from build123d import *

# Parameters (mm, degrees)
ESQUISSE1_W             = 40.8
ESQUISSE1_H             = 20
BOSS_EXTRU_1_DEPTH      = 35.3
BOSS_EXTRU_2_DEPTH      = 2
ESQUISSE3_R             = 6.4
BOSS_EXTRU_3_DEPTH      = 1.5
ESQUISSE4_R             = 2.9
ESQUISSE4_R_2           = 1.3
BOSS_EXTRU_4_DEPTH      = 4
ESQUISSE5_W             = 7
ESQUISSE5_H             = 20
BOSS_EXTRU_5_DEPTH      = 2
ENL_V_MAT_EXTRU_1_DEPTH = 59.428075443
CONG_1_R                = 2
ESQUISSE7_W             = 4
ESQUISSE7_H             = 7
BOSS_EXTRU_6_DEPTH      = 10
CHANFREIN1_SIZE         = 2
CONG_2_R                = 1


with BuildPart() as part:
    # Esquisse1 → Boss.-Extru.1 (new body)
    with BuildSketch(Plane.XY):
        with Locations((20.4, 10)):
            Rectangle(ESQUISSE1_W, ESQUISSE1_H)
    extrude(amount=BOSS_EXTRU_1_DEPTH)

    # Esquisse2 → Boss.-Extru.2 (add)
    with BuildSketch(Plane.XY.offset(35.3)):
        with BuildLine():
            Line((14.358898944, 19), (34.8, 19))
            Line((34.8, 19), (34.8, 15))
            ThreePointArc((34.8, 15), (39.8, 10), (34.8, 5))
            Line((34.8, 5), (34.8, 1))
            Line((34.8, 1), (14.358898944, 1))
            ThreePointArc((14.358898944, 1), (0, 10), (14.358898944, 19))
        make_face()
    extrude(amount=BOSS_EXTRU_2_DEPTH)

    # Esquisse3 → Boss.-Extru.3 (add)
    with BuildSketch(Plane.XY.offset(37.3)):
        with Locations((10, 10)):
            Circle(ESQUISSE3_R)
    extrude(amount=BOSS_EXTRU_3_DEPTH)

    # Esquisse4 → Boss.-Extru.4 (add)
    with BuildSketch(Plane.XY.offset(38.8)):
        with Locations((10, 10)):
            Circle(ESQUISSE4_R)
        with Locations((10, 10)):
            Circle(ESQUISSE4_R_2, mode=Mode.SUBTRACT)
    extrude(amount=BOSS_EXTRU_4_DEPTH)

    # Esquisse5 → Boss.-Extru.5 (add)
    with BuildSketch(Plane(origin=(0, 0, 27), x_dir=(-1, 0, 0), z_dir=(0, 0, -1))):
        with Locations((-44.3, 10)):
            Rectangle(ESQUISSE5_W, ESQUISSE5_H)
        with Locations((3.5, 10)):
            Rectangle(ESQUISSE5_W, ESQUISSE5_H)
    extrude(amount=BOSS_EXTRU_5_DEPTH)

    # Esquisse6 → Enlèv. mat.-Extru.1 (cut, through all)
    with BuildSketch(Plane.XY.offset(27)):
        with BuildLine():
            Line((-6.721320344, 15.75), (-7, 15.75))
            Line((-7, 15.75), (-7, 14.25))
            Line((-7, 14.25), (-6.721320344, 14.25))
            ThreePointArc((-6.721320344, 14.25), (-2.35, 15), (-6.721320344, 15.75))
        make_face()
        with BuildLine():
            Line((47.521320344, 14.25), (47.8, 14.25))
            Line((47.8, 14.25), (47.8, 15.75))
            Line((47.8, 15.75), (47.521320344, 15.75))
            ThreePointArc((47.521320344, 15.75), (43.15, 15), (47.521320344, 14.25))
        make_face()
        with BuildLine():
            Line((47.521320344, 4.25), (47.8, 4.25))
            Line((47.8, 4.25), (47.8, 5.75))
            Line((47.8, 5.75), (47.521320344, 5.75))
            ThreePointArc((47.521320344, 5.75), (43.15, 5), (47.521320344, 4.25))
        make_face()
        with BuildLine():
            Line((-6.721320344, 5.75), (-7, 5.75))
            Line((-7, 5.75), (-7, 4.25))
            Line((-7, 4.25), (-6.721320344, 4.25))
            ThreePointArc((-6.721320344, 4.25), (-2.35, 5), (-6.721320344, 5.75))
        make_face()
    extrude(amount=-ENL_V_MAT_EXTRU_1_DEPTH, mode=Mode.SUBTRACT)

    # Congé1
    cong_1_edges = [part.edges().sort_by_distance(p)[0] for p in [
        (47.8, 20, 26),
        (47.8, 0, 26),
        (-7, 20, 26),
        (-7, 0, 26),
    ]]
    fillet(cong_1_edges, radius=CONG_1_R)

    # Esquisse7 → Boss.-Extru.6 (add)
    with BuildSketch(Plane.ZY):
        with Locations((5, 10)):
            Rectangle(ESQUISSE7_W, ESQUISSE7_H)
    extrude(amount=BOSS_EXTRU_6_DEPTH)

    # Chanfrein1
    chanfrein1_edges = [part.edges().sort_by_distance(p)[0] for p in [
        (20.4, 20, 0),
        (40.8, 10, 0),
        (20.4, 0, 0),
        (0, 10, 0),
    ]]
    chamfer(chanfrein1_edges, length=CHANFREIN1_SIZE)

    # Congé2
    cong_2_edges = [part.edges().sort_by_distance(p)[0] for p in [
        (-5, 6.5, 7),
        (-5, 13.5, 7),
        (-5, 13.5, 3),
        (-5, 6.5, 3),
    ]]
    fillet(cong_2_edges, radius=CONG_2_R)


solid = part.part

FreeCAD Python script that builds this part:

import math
import FreeCAD as App
import Part
import Sketcher

V = App.Vector
Q = App.Units.Quantity


def edges_at(feature, points):
    """Names of the edges that pass closest to the given points."""
    edges = feature.Shape.Edges
    near = lambda p: min(range(len(edges)), key=lambda i: edges[i].distToShape(Part.Vertex(*p))[0])
    return sorted({f"Edge{near(p) + 1}" for p in points})

doc = App.newDocument("Part")
body = doc.addObject("PartDesign::Body", "Body")

# Sketch on XY plane
sketch1 = body.newObject("Sketcher::SketchObject", "Sketch")
sketch1.AttachmentSupport = (doc.getObject("XY_Plane"), [""])
sketch1.MapMode = "FlatFace"
sketch1.addGeometry(Part.LineSegment(V(0, 20, 0), V(0, 0, 0)), False)
sketch1.addGeometry(Part.LineSegment(V(0, 0, 0), V(40.8, 0, 0)), False)
sketch1.addGeometry(Part.LineSegment(V(40.8, 0, 0), V(40.8, 20, 0)), False)
sketch1.addGeometry(Part.LineSegment(V(40.8, 20, 0), V(0, 20, 0)), False)
sketch1.addConstraint(Sketcher.Constraint("Coincident", 0, 2, 1, 1))
sketch1.addConstraint(Sketcher.Constraint("Coincident", 1, 2, 2, 1))
sketch1.addConstraint(Sketcher.Constraint("Coincident", 2, 2, 3, 1))
sketch1.addConstraint(Sketcher.Constraint("Coincident", 3, 2, 0, 1))
sketch1.addConstraint(Sketcher.Constraint("Vertical", 0))
sketch1.addConstraint(Sketcher.Constraint("Horizontal", 1))
sketch1.addConstraint(Sketcher.Constraint("Vertical", 2))
sketch1.addConstraint(Sketcher.Constraint("Horizontal", 3))
sketch1.addConstraint(Sketcher.Constraint("Coincident", 0, 2, -1, 1))
sketch1.addConstraint(Sketcher.Constraint("DistanceY", 0, 2, 0, 1, Q("20 mm")))
sketch1.addConstraint(Sketcher.Constraint("DistanceX", 1, 1, 1, 2, Q("40.8 mm")))
pad1 = body.newObject("PartDesign::Pad", "Pad")
pad1.Profile = sketch1
pad1.Length = 35.3

# Sketch on XY plane
sketch2 = body.newObject("Sketcher::SketchObject", "Sketch001")
sketch2.AttachmentSupport = (doc.getObject("XY_Plane"), [""])
sketch2.MapMode = "FlatFace"
sketch2.AttachmentOffset = App.Placement(V(0, 0, 35.3), App.Rotation())
sketch2.addGeometry(Part.LineSegment(V(34.8, 19, 0), V(14.358899, 19, 0)), False)
sketch2.addGeometry(Part.ArcOfCircle(Part.Circle(V(10, 10, 0), V(0, 0, 1), 10), math.radians(64.158067), math.radians(295.841933)), False)
sketch2.addGeometry(Part.LineSegment(V(14.358899, 1, 0), V(34.8, 1, 0)), False)
sketch2.addGeometry(Part.LineSegment(V(34.8, 1, 0), V(34.8, 5, 0)), False)
sketch2.addGeometry(Part.ArcOfCircle(Part.Circle(V(34.8, 10, 0), V(0, 0, 1), 5), math.radians(-90), math.radians(90)), False)
sketch2.addGeometry(Part.LineSegment(V(34.8, 15, 0), V(34.8, 19, 0)), False)
sketch2.addConstraint(Sketcher.Constraint("Coincident", 0, 2, 1, 1))
sketch2.addConstraint(Sketcher.Constraint("Coincident", 1, 2, 2, 1))
sketch2.addConstraint(Sketcher.Constraint("Coincident", 2, 2, 3, 1))
sketch2.addConstraint(Sketcher.Constraint("Coincident", 3, 2, 4, 1))
sketch2.addConstraint(Sketcher.Constraint("Coincident", 4, 2, 5, 1))
sketch2.addConstraint(Sketcher.Constraint("Coincident", 5, 2, 0, 1))
sketch2.addConstraint(Sketcher.Constraint("Horizontal", 0))
sketch2.addConstraint(Sketcher.Constraint("Horizontal", 2))
sketch2.addConstraint(Sketcher.Constraint("Vertical", 3))
sketch2.addConstraint(Sketcher.Constraint("Vertical", 5))
sketch2.addConstraint(Sketcher.Constraint("Horizontal", 1, 3, 4, 3))
sketch2.addConstraint(Sketcher.Constraint("Vertical", 0, 2, 1, 2))
sketch2.addConstraint(Sketcher.Constraint("Vertical", 4, 3, 2, 2))
sketch2.addConstraint(Sketcher.Constraint("Vertical", 3, 2, 4, 2))
sketch2.addConstraint(Sketcher.Constraint("Radius", 1, Q("10 mm")))
sketch2.addConstraint(Sketcher.Constraint("Radius", 4, Q("5 mm")))
sketch2.addConstraint(Sketcher.Constraint("DistanceY", 3, 1, 3, 2, Q("4 mm")))
sketch2.addConstraint(Sketcher.Constraint("DistanceX", -1, 1, 1, 3, Q("10 mm")))
sketch2.addConstraint(Sketcher.Constraint("DistanceY", -1, 1, 1, 3, Q("10 mm")))
sketch2.addConstraint(Sketcher.Constraint("DistanceX", -1, 1, 4, 3, Q("34.8 mm")))
pad2 = body.newObject("PartDesign::Pad", "Pad001")
pad2.Profile = sketch2
pad2.Length = 2

# Sketch on XY plane
sketch3 = body.newObject("Sketcher::SketchObject", "Sketch002")
sketch3.AttachmentSupport = (doc.getObject("XY_Plane"), [""])
sketch3.MapMode = "FlatFace"
sketch3.AttachmentOffset = App.Placement(V(0, 0, 37.3), App.Rotation())
sketch3.addGeometry(Part.Circle(V(10, 10, 0), V(0, 0, 1), 6.4), False)
sketch3.addConstraint(Sketcher.Constraint("Diameter", 0, Q("12.8 mm")))
sketch3.addConstraint(Sketcher.Constraint("DistanceX", -1, 1, 0, 3, Q("10 mm")))
sketch3.addConstraint(Sketcher.Constraint("DistanceY", -1, 1, 0, 3, Q("10 mm")))
pad3 = body.newObject("PartDesign::Pad", "Pad002")
pad3.Profile = sketch3
pad3.Length = 1.5

# Sketch on XY plane
sketch4 = body.newObject("Sketcher::SketchObject", "Sketch003")
sketch4.AttachmentSupport = (doc.getObject("XY_Plane"), [""])
sketch4.MapMode = "FlatFace"
sketch4.AttachmentOffset = App.Placement(V(0, 0, 38.8), App.Rotation())
sketch4.addGeometry(Part.Circle(V(10, 10, 0), V(0, 0, 1), 2.9), False)
sketch4.addGeometry(Part.Circle(V(10, 10, 0), V(0, 0, 1), 1.3), False)
sketch4.addConstraint(Sketcher.Constraint("Coincident", 1, 3, 0, 3))
sketch4.addConstraint(Sketcher.Constraint("Diameter", 0, Q("5.8 mm")))
sketch4.addConstraint(Sketcher.Constraint("Diameter", 1, Q("2.6 mm")))
sketch4.addConstraint(Sketcher.Constraint("DistanceX", -1, 1, 0, 3, Q("10 mm")))
sketch4.addConstraint(Sketcher.Constraint("DistanceY", -1, 1, 0, 3, Q("10 mm")))
pad4 = body.newObject("PartDesign::Pad", "Pad003")
pad4.Profile = sketch4
pad4.Length = 4

# Sketch on XY plane
sketch5 = body.newObject("Sketcher::SketchObject", "Sketch004")
sketch5.AttachmentSupport = (doc.getObject("XY_Plane"), [""])
sketch5.MapMode = "FlatFace"
sketch5.AttachmentOffset = App.Placement(V(0, 0, 27), App.Rotation())
sketch5.addGeometry(Part.LineSegment(V(47.8, 20, 0), V(47.8, 0, 0)), False)
sketch5.addGeometry(Part.LineSegment(V(47.8, 0, 0), V(40.8, 0, 0)), False)
sketch5.addGeometry(Part.LineSegment(V(40.8, 0, 0), V(40.8, 20, 0)), False)
sketch5.addGeometry(Part.LineSegment(V(40.8, 20, 0), V(47.8, 20, 0)), False)
sketch5.addGeometry(Part.LineSegment(V(0, 20, 0), V(0, 0, 0)), False)
sketch5.addGeometry(Part.LineSegment(V(0, 0, 0), V(-7, 0, 0)), False)
sketch5.addGeometry(Part.LineSegment(V(-7, 0, 0), V(-7, 20, 0)), False)
sketch5.addGeometry(Part.LineSegment(V(-7, 20, 0), V(0, 20, 0)), False)
sketch5.addConstraint(Sketcher.Constraint("Coincident", 0, 2, 1, 1))
sketch5.addConstraint(Sketcher.Constraint("Coincident", 1, 2, 2, 1))
sketch5.addConstraint(Sketcher.Constraint("Coincident", 2, 2, 3, 1))
sketch5.addConstraint(Sketcher.Constraint("Coincident", 3, 2, 0, 1))
sketch5.addConstraint(Sketcher.Constraint("Coincident", 4, 2, 5, 1))
sketch5.addConstraint(Sketcher.Constraint("Coincident", 5, 2, 6, 1))
sketch5.addConstraint(Sketcher.Constraint("Coincident", 6, 2, 7, 1))
sketch5.addConstraint(Sketcher.Constraint("Coincident", 7, 2, 4, 1))
sketch5.addConstraint(Sketcher.Constraint("Vertical", 0))
sketch5.addConstraint(Sketcher.Constraint("Horizontal", 1))
sketch5.addConstraint(Sketcher.Constraint("Vertical", 2))
sketch5.addConstraint(Sketcher.Constraint("Horizontal", 3))
sketch5.addConstraint(Sketcher.Constraint("Vertical", 4))
sketch5.addConstraint(Sketcher.Constraint("Horizontal", 5))
sketch5.addConstraint(Sketcher.Constraint("Vertical", 6))
sketch5.addConstraint(Sketcher.Constraint("Horizontal", 7))
sketch5.addConstraint(Sketcher.Constraint("Coincident", 4, 2, -1, 1))
sketch5.addConstraint(Sketcher.Constraint("PointOnObject", 0, 2, -1))
sketch5.addConstraint(Sketcher.Constraint("Horizontal", 3, 2, 6, 2))
sketch5.addConstraint(Sketcher.Constraint("Equal", 3, 5))
sketch5.addConstraint(Sketcher.Constraint("DistanceX", 1, 2, 1, 1, Q("7 mm")))
sketch5.addConstraint(Sketcher.Constraint("DistanceY", 0, 2, 0, 1, Q("20 mm")))
sketch5.addConstraint(Sketcher.Constraint("DistanceX", -1, 1, 0, 2, Q("47.8 mm")))
pad5 = body.newObject("PartDesign::Pad", "Pad004")
pad5.Profile = sketch5
pad5.Length = 2
pad5.Reversed = True

# Sketch on XY plane
sketch6 = body.newObject("Sketcher::SketchObject", "Sketch005")
sketch6.AttachmentSupport = (doc.getObject("XY_Plane"), [""])
sketch6.MapMode = "FlatFace"
sketch6.AttachmentOffset = App.Placement(V(0, 0, 27), App.Rotation())
sketch6.addGeometry(Part.LineSegment(V(-6.72132, 15.75, 0), V(-7, 15.75, 0)), False)
sketch6.addGeometry(Part.LineSegment(V(-7, 15.75, 0), V(-7, 14.25, 0)), False)
sketch6.addGeometry(Part.LineSegment(V(-7, 14.25, 0), V(-6.72132, 14.25, 0)), False)
sketch6.addGeometry(Part.ArcOfCircle(Part.Circle(V(-4.6, 15, 0), V(0, 0, 1), 2.25), math.radians(-160.528779), math.radians(160.528779)), False)
sketch6.addGeometry(Part.LineSegment(V(47.52132, 14.25, 0), V(47.8, 14.25, 0)), False)
sketch6.addGeometry(Part.LineSegment(V(47.8, 14.25, 0), V(47.8, 15.75, 0)), False)
sketch6.addGeometry(Part.LineSegment(V(47.8, 15.75, 0), V(47.52132, 15.75, 0)), False)
sketch6.addGeometry(Part.ArcOfCircle(Part.Circle(V(45.4, 15, 0), V(0, 0, 1), 2.25), math.radians(19.471221), math.radians(340.528779)), False)
sketch6.addGeometry(Part.LineSegment(V(47.52132, 4.25, 0), V(47.8, 4.25, 0)), False)
sketch6.addGeometry(Part.LineSegment(V(47.8, 4.25, 0), V(47.8, 5.75, 0)), False)
sketch6.addGeometry(Part.LineSegment(V(47.8, 5.75, 0), V(47.52132, 5.75, 0)), False)
sketch6.addGeometry(Part.ArcOfCircle(Part.Circle(V(45.4, 5, 0), V(0, 0, 1), 2.25), math.radians(19.471221), math.radians(340.528779)), False)
sketch6.addGeometry(Part.LineSegment(V(-6.72132, 5.75, 0), V(-7, 5.75, 0)), False)
sketch6.addGeometry(Part.LineSegment(V(-7, 5.75, 0), V(-7, 4.25, 0)), False)
sketch6.addGeometry(Part.LineSegment(V(-7, 4.25, 0), V(-6.72132, 4.25, 0)), False)
sketch6.addGeometry(Part.ArcOfCircle(Part.Circle(V(-4.6, 5, 0), V(0, 0, 1), 2.25), math.radians(-160.528779), math.radians(160.528779)), False)
sketch6.addConstraint(Sketcher.Constraint("Coincident", 0, 2, 1, 1))
sketch6.addConstraint(Sketcher.Constraint("Coincident", 1, 2, 2, 1))
sketch6.addConstraint(Sketcher.Constraint("Coincident", 2, 2, 3, 1))
sketch6.addConstraint(Sketcher.Constraint("Coincident", 3, 2, 0, 1))
sketch6.addConstraint(Sketcher.Constraint("Coincident", 4, 2, 5, 1))
sketch6.addConstraint(Sketcher.Constraint("Coincident", 5, 2, 6, 1))
sketch6.addConstraint(Sketcher.Constraint("Coincident", 6, 2, 7, 1))
sketch6.addConstraint(Sketcher.Constraint("Coincident", 7, 2, 4, 1))
sketch6.addConstraint(Sketcher.Constraint("Coincident", 8, 2, 9, 1))
sketch6.addConstraint(Sketcher.Constraint("Coincident", 9, 2, 10, 1))
sketch6.addConstraint(Sketcher.Constraint("Coincident", 10, 2, 11, 1))
sketch6.addConstraint(Sketcher.Constraint("Coincident", 11, 2, 8, 1))
sketch6.addConstraint(Sketcher.Constraint("Coincident", 12, 2, 13, 1))
sketch6.addConstraint(Sketcher.Constraint("Coincident", 13, 2, 14, 1))
sketch6.addConstraint(Sketcher.Constraint("Coincident", 14, 2, 15, 1))
sketch6.addConstraint(Sketcher.Constraint("Coincident", 15, 2, 12, 1))
sketch6.addConstraint(Sketcher.Constraint("Horizontal", 0))
sketch6.addConstraint(Sketcher.Constraint("Vertical", 1))
sketch6.addConstraint(Sketcher.Constraint("Horizontal", 2))
sketch6.addConstraint(Sketcher.Constraint("Horizontal", 4))
sketch6.addConstraint(Sketcher.Constraint("Vertical", 5))
sketch6.addConstraint(Sketcher.Constraint("Horizontal", 6))
sketch6.addConstraint(Sketcher.Constraint("Horizontal", 8))
sketch6.addConstraint(Sketcher.Constraint("Vertical", 9))
sketch6.addConstraint(Sketcher.Constraint("Horizontal", 10))
sketch6.addConstraint(Sketcher.Constraint("Horizontal", 12))
sketch6.addConstraint(Sketcher.Constraint("Vertical", 13))
sketch6.addConstraint(Sketcher.Constraint("Horizontal", 14))
sketch6.addConstraint(Sketcher.Constraint("Equal", 3, 7))
sketch6.addConstraint(Sketcher.Constraint("Equal", 7, 11))
sketch6.addConstraint(Sketcher.Constraint("Equal", 11, 15))
sketch6.addConstraint(Sketcher.Constraint("Horizontal", 3, 3, 7, 3))
sketch6.addConstraint(Sketcher.Constraint("Horizontal", 11, 3, 15, 3))
sketch6.addConstraint(Sketcher.Constraint("Horizontal", 2, 2, 4, 2))
sketch6.addConstraint(Sketcher.Constraint("Horizontal", 3, 2, 5, 2))
sketch6.addConstraint(Sketcher.Constraint("Horizontal", 10, 2, 12, 2))
sketch6.addConstraint(Sketcher.Constraint("Horizontal", 11, 2, 13, 2))
sketch6.addConstraint(Sketcher.Constraint("Vertical", 7, 3, 11, 3))
sketch6.addConstraint(Sketcher.Constraint("Vertical", 3, 3, 15, 3))
sketch6.addConstraint(Sketcher.Constraint("Vertical", 2, 2, 3, 2))
sketch6.addConstraint(Sketcher.Constraint("Vertical", 5, 2, 8, 2))
sketch6.addConstraint(Sketcher.Constraint("Vertical", 7, 2, 10, 2))
sketch6.addConstraint(Sketcher.Constraint("Vertical", 10, 2, 11, 2))
sketch6.addConstraint(Sketcher.Constraint("Vertical", 1, 2, 12, 2))
sketch6.addConstraint(Sketcher.Constraint("Equal", 2, 4))
sketch6.addConstraint(Sketcher.Constraint("Radius", 3, Q("2.25 mm")))
sketch6.addConstraint(Sketcher.Constraint("DistanceY", 1, 2, 1, 1, Q("1.5 mm")))
sketch6.addConstraint(Sketcher.Constraint("DistanceY", -1, 1, 3, 3, Q("15 mm")))
sketch6.addConstraint(Sketcher.Constraint("DistanceY", -1, 1, 11, 3, Q("5 mm")))
sketch6.addConstraint(Sketcher.Constraint("DistanceX", 0, 2, -1, 1, Q("7 mm")))
sketch6.addConstraint(Sketcher.Constraint("DistanceX", 3, 3, 7, 3, Q("50 mm")))
sketch6.addConstraint(Sketcher.Constraint("DistanceX", 3, 3, -1, 1, Q("4.6 mm")))
pocket1 = body.newObject("PartDesign::Pocket", "Pocket")
pocket1.Profile = sketch6
pocket1.Type = "ThroughAll"
doc.recompute()

fillet = body.newObject("PartDesign::Fillet", "Fillet")
fillet.Base = (pocket1, edges_at(pocket1, [
    (47.8, 20, 26),
    (47.8, 0, 26),
    (-7, 20, 26),
    (-7, 0, 26),
]))
fillet.Radius = 2

# Sketch on YZ plane
sketch7 = body.newObject("Sketcher::SketchObject", "Sketch006")
sketch7.AttachmentSupport = (doc.getObject("YZ_Plane"), [""])
sketch7.MapMode = "FlatFace"
sketch7.addGeometry(Part.LineSegment(V(13.5, 3, 0), V(6.5, 3, 0)), False)
sketch7.addGeometry(Part.LineSegment(V(6.5, 3, 0), V(6.5, 7, 0)), False)
sketch7.addGeometry(Part.LineSegment(V(6.5, 7, 0), V(13.5, 7, 0)), False)
sketch7.addGeometry(Part.LineSegment(V(13.5, 7, 0), V(13.5, 3, 0)), False)
sketch7.addConstraint(Sketcher.Constraint("Coincident", 0, 2, 1, 1))
sketch7.addConstraint(Sketcher.Constraint("Coincident", 1, 2, 2, 1))
sketch7.addConstraint(Sketcher.Constraint("Coincident", 2, 2, 3, 1))
sketch7.addConstraint(Sketcher.Constraint("Coincident", 3, 2, 0, 1))
sketch7.addConstraint(Sketcher.Constraint("Horizontal", 0))
sketch7.addConstraint(Sketcher.Constraint("Vertical", 1))
sketch7.addConstraint(Sketcher.Constraint("Horizontal", 2))
sketch7.addConstraint(Sketcher.Constraint("Vertical", 3))
sketch7.addConstraint(Sketcher.Constraint("DistanceX", 0, 2, 0, 1, Q("7 mm")))
sketch7.addConstraint(Sketcher.Constraint("DistanceY", 1, 1, 1, 2, Q("4 mm")))
sketch7.addConstraint(Sketcher.Constraint("DistanceY", -1, 1, 0, 2, Q("3 mm")))
sketch7.addConstraint(Sketcher.Constraint("DistanceX", -1, 1, 0, 2, Q("6.5 mm")))
pad6 = body.newObject("PartDesign::Pad", "Pad005")
pad6.Profile = sketch7
pad6.Length = 10
pad6.Reversed = True
doc.recompute()

chamfer = body.newObject("PartDesign::Chamfer", "Chamfer")
chamfer.Base = (pad6, edges_at(pad6, [
    (20.4, 20, 0),
    (40.8, 10, 0),
    (20.4, 0, 0),
    (0, 10, 0),
]))
chamfer.Size = 2
doc.recompute()

fillet2 = body.newObject("PartDesign::Fillet", "Fillet001")
fillet2.Base = (chamfer, edges_at(chamfer, [
    (-5, 6.5, 7),
    (-5, 13.5, 7),
    (-5, 13.5, 3),
    (-5, 6.5, 3),
]))
fillet2.Radius = 1

doc.recompute()
